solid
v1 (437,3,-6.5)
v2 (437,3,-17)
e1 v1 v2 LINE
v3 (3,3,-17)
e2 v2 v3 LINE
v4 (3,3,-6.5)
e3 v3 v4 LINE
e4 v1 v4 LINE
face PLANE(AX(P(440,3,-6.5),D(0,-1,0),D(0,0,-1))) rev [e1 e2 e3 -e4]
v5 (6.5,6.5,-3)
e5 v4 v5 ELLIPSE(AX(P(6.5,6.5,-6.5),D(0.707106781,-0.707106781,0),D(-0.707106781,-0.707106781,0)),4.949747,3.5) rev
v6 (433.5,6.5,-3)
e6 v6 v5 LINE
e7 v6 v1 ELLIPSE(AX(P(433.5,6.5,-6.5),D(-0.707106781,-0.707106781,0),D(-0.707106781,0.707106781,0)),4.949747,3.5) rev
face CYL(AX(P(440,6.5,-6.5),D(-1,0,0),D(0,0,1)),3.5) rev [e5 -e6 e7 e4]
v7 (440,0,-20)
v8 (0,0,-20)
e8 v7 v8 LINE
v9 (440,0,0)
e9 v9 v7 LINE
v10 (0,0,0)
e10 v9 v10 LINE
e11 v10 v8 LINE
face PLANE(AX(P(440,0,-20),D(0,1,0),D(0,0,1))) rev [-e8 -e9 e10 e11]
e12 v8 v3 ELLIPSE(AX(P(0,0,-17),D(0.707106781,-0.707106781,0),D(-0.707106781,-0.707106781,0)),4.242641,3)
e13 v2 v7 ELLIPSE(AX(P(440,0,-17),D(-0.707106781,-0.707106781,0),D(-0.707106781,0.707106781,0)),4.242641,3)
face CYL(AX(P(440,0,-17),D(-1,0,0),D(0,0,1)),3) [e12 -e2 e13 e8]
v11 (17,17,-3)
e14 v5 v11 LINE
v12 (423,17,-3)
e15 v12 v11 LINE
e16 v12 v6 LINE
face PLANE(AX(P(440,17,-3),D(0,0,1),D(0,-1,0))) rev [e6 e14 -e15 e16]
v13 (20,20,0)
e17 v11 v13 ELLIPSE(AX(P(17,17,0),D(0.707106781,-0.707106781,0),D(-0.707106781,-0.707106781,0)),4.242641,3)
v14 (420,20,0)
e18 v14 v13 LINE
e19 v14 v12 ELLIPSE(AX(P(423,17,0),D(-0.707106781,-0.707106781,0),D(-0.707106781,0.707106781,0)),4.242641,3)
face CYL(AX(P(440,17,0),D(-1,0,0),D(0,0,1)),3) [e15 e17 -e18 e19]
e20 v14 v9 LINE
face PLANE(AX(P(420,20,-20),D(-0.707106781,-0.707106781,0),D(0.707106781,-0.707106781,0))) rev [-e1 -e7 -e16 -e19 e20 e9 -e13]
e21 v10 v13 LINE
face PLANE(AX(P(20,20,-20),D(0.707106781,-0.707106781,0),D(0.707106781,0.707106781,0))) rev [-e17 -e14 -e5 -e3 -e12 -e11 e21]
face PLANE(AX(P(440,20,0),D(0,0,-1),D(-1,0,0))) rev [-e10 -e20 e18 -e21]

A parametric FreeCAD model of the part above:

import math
import FreeCAD as App
import Part
import Sketcher
from FreeCAD import Vector
Q = App.Units.Quantity


def add_polygon(sketch, points):
    """Adds a closed chain of lines whose ends are joined by coincident constraints."""
    first, n = sketch.GeometryCount, len(points)
    for a, b in zip(points, points[1:] + points[:1]):
        sketch.addGeometry(Part.LineSegment(App.Vector(*a, 0), App.Vector(*b, 0)), False)
    for i in range(n):
        sketch.addConstraint(Sketcher.Constraint("Coincident", first + i, 2, first + (i + 1) % n, 1))

doc = App.newDocument("Part")
body = doc.addObject("PartDesign::Body", "Body")

sketch1 = body.newObject("Sketcher::SketchObject", "Sketch")
sketch1.AttachmentSupport = (doc.getObject("YZ_Plane"), [""])
sketch1.MapMode = "FlatFace"
sketch1.addGeometry([
    Part.LineSegment(Vector(20, 0, 0), Vector(0, 0, 0)),
    Part.LineSegment(Vector(0, 0, 0), Vector(0, -20, 0)),
    Part.ArcOfCircle(Part.Circle(Vector(0, -17, 0), Vector(0, 0, 1), 3), math.radians(-90), math.radians(0)),
    Part.LineSegment(Vector(3, -17, 0), Vector(3, -6.5, 0)),
    Part.ArcOfCircle(Part.Circle(Vector(6.5, -6.5, 0), Vector(0, 0, 1), 3.5), math.radians(90), math.radians(180)),
    Part.LineSegment(Vector(6.5, -3, 0), Vector(17, -3, 0)),
    Part.ArcOfCircle(Part.Circle(Vector(17, 0, 0), Vector(0, 0, 1), 3), math.radians(-90), math.radians(0)),
], False)
sketch1.addConstraint([
    Sketcher.Constraint("Coincident", 0, 2, 1, 1),
    Sketcher.Constraint("Coincident", 1, 2, 2, 1),
    Sketcher.Constraint("Tangent", 2, 2, 3, 1),
    Sketcher.Constraint("Tangent", 3, 2, 4, 2),
    Sketcher.Constraint("Tangent", 4, 1, 5, 1),
    Sketcher.Constraint("Tangent", 5, 2, 6, 1),
    Sketcher.Constraint("Coincident", 6, 2, 0, 1),
    Sketcher.Constraint("Horizontal", 0),
    Sketcher.Constraint("Vertical", 1),
    Sketcher.Constraint("Vertical", 3),
    Sketcher.Constraint("Horizontal", 5),
    Sketcher.Constraint("Coincident", 0, 2, -1, 1),
    Sketcher.Constraint("Equal", 2, 6),
    Sketcher.Constraint("PointOnObject", 2, 3, -2),
    Sketcher.Constraint("PointOnObject", 6, 3, -1),
    Sketcher.Constraint("Equal", 0, 1),
    Sketcher.Constraint("Radius", 2, Q("3 mm")),
    Sketcher.Constraint("Radius", 4, Q("3.5 mm")),
    Sketcher.Constraint("DistanceX", 0, 2, 0, 1, Q("20 mm")),
])
pad1 = body.newObject("PartDesign::Pad", "Pad")
pad1.Profile = sketch1
pad1.Length = 440

sketch2 = body.newObject("Sketcher::SketchObject", "Sketch001")
sketch2.AttachmentSupport = (doc.getObject("XY_Plane"), [""])
sketch2.MapMode = "FlatFace"
add_polygon(sketch2, [(440, 0), (440, 20), (420, 20)])
add_polygon(sketch2, [(0, 20), (0, 0), (20, 20)])
sketch2.addConstraint([
    Sketcher.Constraint("Vertical", 0),
    Sketcher.Constraint("Horizontal", 1),
    Sketcher.Constraint("Vertical", 3),
    Sketcher.Constraint("Horizontal", 5),
    Sketcher.Constraint("Coincident", 3, 2, -1, 1),
    Sketcher.Constraint("PointOnObject", 2, 2, -1),
    Sketcher.Constraint("Perpendicular", 2, 4),
    Sketcher.Constraint("Horizontal", 1, 2, 4, 2),
    Sketcher.Constraint("Equal", 1, 5),
    Sketcher.Constraint("DistanceX", 1, 2, 1, 1, Q("20 mm")),
    Sketcher.Constraint("DistanceX", -1, 1, 0, 2, Q("440 mm")),
])
pocket1 = body.newObject("PartDesign::Pocket", "Pocket")
pocket1.Profile = sketch2
pocket1.Type = "ThroughAll"

doc.recompute()
